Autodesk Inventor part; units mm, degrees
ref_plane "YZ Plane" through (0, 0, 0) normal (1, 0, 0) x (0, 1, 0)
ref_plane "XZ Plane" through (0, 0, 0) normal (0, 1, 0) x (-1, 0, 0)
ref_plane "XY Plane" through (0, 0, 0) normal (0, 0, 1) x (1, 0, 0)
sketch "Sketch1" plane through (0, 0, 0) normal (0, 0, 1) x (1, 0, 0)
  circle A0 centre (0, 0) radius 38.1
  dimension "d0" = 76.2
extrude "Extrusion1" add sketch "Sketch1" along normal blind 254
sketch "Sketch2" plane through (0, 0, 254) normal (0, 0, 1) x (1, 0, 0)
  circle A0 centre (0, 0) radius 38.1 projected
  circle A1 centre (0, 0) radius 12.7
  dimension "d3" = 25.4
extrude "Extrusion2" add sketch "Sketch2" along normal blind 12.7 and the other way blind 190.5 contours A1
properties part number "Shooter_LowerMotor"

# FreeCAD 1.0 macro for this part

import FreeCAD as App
import Part
import Sketcher

V = App.Vector
Q = App.Units.Quantity

doc = App.newDocument("Part")
body = doc.addObject("PartDesign::Body", "Body")

# Sketch on XY plane
sketch1 = doc.addObject("Sketcher::SketchObject", "Sketch")
body.addObject(sketch1)
sketch1.AttachmentSupport = (doc.XY_Plane, [""])
sketch1.MapMode = "FlatFace"
sketch1.addGeometry(Part.Circle(V(0, 0, 0), V(0, 0, 1), 38.1), False)
sketch1.addConstraint(Sketcher.Constraint("Coincident", 0, 3, -1, 1))
sketch1.addConstraint(Sketcher.Constraint("Diameter", 0, Q("3 in")))
pad1 = doc.addObject("PartDesign::Pad", "Pad")
body.addObject(pad1)
pad1.Profile = sketch1
pad1.Length = Q("10 in")

# Sketch on XY plane
sketch2 = doc.addObject("Sketcher::SketchObject", "Sketch001")
body.addObject(sketch2)
sketch2.AttachmentSupport = (doc.XY_Plane, [""])
sketch2.MapMode = "FlatFace"
sketch2.AttachmentOffset = App.Placement(V(0, 0, 10 * 25.4), App.Rotation())
sketch2.addGeometry(Part.Circle(V(0, 0, 0), V(0, 0, 1), 12.7), False)
sketch2.addConstraint(Sketcher.Constraint("Coincident", 0, 3, -1, 1))
sketch2.addConstraint(Sketcher.Constraint("Diameter", 0, Q("1 in")))
pad2 = doc.addObject("PartDesign::Pad", "Pad001")
body.addObject(pad2)
pad2.Profile = sketch2
pad2.Type = "TwoLengths"
pad2.Length = Q("0.5 in")
pad2.Length2 = Q("7.5 in")

doc.recompute()
